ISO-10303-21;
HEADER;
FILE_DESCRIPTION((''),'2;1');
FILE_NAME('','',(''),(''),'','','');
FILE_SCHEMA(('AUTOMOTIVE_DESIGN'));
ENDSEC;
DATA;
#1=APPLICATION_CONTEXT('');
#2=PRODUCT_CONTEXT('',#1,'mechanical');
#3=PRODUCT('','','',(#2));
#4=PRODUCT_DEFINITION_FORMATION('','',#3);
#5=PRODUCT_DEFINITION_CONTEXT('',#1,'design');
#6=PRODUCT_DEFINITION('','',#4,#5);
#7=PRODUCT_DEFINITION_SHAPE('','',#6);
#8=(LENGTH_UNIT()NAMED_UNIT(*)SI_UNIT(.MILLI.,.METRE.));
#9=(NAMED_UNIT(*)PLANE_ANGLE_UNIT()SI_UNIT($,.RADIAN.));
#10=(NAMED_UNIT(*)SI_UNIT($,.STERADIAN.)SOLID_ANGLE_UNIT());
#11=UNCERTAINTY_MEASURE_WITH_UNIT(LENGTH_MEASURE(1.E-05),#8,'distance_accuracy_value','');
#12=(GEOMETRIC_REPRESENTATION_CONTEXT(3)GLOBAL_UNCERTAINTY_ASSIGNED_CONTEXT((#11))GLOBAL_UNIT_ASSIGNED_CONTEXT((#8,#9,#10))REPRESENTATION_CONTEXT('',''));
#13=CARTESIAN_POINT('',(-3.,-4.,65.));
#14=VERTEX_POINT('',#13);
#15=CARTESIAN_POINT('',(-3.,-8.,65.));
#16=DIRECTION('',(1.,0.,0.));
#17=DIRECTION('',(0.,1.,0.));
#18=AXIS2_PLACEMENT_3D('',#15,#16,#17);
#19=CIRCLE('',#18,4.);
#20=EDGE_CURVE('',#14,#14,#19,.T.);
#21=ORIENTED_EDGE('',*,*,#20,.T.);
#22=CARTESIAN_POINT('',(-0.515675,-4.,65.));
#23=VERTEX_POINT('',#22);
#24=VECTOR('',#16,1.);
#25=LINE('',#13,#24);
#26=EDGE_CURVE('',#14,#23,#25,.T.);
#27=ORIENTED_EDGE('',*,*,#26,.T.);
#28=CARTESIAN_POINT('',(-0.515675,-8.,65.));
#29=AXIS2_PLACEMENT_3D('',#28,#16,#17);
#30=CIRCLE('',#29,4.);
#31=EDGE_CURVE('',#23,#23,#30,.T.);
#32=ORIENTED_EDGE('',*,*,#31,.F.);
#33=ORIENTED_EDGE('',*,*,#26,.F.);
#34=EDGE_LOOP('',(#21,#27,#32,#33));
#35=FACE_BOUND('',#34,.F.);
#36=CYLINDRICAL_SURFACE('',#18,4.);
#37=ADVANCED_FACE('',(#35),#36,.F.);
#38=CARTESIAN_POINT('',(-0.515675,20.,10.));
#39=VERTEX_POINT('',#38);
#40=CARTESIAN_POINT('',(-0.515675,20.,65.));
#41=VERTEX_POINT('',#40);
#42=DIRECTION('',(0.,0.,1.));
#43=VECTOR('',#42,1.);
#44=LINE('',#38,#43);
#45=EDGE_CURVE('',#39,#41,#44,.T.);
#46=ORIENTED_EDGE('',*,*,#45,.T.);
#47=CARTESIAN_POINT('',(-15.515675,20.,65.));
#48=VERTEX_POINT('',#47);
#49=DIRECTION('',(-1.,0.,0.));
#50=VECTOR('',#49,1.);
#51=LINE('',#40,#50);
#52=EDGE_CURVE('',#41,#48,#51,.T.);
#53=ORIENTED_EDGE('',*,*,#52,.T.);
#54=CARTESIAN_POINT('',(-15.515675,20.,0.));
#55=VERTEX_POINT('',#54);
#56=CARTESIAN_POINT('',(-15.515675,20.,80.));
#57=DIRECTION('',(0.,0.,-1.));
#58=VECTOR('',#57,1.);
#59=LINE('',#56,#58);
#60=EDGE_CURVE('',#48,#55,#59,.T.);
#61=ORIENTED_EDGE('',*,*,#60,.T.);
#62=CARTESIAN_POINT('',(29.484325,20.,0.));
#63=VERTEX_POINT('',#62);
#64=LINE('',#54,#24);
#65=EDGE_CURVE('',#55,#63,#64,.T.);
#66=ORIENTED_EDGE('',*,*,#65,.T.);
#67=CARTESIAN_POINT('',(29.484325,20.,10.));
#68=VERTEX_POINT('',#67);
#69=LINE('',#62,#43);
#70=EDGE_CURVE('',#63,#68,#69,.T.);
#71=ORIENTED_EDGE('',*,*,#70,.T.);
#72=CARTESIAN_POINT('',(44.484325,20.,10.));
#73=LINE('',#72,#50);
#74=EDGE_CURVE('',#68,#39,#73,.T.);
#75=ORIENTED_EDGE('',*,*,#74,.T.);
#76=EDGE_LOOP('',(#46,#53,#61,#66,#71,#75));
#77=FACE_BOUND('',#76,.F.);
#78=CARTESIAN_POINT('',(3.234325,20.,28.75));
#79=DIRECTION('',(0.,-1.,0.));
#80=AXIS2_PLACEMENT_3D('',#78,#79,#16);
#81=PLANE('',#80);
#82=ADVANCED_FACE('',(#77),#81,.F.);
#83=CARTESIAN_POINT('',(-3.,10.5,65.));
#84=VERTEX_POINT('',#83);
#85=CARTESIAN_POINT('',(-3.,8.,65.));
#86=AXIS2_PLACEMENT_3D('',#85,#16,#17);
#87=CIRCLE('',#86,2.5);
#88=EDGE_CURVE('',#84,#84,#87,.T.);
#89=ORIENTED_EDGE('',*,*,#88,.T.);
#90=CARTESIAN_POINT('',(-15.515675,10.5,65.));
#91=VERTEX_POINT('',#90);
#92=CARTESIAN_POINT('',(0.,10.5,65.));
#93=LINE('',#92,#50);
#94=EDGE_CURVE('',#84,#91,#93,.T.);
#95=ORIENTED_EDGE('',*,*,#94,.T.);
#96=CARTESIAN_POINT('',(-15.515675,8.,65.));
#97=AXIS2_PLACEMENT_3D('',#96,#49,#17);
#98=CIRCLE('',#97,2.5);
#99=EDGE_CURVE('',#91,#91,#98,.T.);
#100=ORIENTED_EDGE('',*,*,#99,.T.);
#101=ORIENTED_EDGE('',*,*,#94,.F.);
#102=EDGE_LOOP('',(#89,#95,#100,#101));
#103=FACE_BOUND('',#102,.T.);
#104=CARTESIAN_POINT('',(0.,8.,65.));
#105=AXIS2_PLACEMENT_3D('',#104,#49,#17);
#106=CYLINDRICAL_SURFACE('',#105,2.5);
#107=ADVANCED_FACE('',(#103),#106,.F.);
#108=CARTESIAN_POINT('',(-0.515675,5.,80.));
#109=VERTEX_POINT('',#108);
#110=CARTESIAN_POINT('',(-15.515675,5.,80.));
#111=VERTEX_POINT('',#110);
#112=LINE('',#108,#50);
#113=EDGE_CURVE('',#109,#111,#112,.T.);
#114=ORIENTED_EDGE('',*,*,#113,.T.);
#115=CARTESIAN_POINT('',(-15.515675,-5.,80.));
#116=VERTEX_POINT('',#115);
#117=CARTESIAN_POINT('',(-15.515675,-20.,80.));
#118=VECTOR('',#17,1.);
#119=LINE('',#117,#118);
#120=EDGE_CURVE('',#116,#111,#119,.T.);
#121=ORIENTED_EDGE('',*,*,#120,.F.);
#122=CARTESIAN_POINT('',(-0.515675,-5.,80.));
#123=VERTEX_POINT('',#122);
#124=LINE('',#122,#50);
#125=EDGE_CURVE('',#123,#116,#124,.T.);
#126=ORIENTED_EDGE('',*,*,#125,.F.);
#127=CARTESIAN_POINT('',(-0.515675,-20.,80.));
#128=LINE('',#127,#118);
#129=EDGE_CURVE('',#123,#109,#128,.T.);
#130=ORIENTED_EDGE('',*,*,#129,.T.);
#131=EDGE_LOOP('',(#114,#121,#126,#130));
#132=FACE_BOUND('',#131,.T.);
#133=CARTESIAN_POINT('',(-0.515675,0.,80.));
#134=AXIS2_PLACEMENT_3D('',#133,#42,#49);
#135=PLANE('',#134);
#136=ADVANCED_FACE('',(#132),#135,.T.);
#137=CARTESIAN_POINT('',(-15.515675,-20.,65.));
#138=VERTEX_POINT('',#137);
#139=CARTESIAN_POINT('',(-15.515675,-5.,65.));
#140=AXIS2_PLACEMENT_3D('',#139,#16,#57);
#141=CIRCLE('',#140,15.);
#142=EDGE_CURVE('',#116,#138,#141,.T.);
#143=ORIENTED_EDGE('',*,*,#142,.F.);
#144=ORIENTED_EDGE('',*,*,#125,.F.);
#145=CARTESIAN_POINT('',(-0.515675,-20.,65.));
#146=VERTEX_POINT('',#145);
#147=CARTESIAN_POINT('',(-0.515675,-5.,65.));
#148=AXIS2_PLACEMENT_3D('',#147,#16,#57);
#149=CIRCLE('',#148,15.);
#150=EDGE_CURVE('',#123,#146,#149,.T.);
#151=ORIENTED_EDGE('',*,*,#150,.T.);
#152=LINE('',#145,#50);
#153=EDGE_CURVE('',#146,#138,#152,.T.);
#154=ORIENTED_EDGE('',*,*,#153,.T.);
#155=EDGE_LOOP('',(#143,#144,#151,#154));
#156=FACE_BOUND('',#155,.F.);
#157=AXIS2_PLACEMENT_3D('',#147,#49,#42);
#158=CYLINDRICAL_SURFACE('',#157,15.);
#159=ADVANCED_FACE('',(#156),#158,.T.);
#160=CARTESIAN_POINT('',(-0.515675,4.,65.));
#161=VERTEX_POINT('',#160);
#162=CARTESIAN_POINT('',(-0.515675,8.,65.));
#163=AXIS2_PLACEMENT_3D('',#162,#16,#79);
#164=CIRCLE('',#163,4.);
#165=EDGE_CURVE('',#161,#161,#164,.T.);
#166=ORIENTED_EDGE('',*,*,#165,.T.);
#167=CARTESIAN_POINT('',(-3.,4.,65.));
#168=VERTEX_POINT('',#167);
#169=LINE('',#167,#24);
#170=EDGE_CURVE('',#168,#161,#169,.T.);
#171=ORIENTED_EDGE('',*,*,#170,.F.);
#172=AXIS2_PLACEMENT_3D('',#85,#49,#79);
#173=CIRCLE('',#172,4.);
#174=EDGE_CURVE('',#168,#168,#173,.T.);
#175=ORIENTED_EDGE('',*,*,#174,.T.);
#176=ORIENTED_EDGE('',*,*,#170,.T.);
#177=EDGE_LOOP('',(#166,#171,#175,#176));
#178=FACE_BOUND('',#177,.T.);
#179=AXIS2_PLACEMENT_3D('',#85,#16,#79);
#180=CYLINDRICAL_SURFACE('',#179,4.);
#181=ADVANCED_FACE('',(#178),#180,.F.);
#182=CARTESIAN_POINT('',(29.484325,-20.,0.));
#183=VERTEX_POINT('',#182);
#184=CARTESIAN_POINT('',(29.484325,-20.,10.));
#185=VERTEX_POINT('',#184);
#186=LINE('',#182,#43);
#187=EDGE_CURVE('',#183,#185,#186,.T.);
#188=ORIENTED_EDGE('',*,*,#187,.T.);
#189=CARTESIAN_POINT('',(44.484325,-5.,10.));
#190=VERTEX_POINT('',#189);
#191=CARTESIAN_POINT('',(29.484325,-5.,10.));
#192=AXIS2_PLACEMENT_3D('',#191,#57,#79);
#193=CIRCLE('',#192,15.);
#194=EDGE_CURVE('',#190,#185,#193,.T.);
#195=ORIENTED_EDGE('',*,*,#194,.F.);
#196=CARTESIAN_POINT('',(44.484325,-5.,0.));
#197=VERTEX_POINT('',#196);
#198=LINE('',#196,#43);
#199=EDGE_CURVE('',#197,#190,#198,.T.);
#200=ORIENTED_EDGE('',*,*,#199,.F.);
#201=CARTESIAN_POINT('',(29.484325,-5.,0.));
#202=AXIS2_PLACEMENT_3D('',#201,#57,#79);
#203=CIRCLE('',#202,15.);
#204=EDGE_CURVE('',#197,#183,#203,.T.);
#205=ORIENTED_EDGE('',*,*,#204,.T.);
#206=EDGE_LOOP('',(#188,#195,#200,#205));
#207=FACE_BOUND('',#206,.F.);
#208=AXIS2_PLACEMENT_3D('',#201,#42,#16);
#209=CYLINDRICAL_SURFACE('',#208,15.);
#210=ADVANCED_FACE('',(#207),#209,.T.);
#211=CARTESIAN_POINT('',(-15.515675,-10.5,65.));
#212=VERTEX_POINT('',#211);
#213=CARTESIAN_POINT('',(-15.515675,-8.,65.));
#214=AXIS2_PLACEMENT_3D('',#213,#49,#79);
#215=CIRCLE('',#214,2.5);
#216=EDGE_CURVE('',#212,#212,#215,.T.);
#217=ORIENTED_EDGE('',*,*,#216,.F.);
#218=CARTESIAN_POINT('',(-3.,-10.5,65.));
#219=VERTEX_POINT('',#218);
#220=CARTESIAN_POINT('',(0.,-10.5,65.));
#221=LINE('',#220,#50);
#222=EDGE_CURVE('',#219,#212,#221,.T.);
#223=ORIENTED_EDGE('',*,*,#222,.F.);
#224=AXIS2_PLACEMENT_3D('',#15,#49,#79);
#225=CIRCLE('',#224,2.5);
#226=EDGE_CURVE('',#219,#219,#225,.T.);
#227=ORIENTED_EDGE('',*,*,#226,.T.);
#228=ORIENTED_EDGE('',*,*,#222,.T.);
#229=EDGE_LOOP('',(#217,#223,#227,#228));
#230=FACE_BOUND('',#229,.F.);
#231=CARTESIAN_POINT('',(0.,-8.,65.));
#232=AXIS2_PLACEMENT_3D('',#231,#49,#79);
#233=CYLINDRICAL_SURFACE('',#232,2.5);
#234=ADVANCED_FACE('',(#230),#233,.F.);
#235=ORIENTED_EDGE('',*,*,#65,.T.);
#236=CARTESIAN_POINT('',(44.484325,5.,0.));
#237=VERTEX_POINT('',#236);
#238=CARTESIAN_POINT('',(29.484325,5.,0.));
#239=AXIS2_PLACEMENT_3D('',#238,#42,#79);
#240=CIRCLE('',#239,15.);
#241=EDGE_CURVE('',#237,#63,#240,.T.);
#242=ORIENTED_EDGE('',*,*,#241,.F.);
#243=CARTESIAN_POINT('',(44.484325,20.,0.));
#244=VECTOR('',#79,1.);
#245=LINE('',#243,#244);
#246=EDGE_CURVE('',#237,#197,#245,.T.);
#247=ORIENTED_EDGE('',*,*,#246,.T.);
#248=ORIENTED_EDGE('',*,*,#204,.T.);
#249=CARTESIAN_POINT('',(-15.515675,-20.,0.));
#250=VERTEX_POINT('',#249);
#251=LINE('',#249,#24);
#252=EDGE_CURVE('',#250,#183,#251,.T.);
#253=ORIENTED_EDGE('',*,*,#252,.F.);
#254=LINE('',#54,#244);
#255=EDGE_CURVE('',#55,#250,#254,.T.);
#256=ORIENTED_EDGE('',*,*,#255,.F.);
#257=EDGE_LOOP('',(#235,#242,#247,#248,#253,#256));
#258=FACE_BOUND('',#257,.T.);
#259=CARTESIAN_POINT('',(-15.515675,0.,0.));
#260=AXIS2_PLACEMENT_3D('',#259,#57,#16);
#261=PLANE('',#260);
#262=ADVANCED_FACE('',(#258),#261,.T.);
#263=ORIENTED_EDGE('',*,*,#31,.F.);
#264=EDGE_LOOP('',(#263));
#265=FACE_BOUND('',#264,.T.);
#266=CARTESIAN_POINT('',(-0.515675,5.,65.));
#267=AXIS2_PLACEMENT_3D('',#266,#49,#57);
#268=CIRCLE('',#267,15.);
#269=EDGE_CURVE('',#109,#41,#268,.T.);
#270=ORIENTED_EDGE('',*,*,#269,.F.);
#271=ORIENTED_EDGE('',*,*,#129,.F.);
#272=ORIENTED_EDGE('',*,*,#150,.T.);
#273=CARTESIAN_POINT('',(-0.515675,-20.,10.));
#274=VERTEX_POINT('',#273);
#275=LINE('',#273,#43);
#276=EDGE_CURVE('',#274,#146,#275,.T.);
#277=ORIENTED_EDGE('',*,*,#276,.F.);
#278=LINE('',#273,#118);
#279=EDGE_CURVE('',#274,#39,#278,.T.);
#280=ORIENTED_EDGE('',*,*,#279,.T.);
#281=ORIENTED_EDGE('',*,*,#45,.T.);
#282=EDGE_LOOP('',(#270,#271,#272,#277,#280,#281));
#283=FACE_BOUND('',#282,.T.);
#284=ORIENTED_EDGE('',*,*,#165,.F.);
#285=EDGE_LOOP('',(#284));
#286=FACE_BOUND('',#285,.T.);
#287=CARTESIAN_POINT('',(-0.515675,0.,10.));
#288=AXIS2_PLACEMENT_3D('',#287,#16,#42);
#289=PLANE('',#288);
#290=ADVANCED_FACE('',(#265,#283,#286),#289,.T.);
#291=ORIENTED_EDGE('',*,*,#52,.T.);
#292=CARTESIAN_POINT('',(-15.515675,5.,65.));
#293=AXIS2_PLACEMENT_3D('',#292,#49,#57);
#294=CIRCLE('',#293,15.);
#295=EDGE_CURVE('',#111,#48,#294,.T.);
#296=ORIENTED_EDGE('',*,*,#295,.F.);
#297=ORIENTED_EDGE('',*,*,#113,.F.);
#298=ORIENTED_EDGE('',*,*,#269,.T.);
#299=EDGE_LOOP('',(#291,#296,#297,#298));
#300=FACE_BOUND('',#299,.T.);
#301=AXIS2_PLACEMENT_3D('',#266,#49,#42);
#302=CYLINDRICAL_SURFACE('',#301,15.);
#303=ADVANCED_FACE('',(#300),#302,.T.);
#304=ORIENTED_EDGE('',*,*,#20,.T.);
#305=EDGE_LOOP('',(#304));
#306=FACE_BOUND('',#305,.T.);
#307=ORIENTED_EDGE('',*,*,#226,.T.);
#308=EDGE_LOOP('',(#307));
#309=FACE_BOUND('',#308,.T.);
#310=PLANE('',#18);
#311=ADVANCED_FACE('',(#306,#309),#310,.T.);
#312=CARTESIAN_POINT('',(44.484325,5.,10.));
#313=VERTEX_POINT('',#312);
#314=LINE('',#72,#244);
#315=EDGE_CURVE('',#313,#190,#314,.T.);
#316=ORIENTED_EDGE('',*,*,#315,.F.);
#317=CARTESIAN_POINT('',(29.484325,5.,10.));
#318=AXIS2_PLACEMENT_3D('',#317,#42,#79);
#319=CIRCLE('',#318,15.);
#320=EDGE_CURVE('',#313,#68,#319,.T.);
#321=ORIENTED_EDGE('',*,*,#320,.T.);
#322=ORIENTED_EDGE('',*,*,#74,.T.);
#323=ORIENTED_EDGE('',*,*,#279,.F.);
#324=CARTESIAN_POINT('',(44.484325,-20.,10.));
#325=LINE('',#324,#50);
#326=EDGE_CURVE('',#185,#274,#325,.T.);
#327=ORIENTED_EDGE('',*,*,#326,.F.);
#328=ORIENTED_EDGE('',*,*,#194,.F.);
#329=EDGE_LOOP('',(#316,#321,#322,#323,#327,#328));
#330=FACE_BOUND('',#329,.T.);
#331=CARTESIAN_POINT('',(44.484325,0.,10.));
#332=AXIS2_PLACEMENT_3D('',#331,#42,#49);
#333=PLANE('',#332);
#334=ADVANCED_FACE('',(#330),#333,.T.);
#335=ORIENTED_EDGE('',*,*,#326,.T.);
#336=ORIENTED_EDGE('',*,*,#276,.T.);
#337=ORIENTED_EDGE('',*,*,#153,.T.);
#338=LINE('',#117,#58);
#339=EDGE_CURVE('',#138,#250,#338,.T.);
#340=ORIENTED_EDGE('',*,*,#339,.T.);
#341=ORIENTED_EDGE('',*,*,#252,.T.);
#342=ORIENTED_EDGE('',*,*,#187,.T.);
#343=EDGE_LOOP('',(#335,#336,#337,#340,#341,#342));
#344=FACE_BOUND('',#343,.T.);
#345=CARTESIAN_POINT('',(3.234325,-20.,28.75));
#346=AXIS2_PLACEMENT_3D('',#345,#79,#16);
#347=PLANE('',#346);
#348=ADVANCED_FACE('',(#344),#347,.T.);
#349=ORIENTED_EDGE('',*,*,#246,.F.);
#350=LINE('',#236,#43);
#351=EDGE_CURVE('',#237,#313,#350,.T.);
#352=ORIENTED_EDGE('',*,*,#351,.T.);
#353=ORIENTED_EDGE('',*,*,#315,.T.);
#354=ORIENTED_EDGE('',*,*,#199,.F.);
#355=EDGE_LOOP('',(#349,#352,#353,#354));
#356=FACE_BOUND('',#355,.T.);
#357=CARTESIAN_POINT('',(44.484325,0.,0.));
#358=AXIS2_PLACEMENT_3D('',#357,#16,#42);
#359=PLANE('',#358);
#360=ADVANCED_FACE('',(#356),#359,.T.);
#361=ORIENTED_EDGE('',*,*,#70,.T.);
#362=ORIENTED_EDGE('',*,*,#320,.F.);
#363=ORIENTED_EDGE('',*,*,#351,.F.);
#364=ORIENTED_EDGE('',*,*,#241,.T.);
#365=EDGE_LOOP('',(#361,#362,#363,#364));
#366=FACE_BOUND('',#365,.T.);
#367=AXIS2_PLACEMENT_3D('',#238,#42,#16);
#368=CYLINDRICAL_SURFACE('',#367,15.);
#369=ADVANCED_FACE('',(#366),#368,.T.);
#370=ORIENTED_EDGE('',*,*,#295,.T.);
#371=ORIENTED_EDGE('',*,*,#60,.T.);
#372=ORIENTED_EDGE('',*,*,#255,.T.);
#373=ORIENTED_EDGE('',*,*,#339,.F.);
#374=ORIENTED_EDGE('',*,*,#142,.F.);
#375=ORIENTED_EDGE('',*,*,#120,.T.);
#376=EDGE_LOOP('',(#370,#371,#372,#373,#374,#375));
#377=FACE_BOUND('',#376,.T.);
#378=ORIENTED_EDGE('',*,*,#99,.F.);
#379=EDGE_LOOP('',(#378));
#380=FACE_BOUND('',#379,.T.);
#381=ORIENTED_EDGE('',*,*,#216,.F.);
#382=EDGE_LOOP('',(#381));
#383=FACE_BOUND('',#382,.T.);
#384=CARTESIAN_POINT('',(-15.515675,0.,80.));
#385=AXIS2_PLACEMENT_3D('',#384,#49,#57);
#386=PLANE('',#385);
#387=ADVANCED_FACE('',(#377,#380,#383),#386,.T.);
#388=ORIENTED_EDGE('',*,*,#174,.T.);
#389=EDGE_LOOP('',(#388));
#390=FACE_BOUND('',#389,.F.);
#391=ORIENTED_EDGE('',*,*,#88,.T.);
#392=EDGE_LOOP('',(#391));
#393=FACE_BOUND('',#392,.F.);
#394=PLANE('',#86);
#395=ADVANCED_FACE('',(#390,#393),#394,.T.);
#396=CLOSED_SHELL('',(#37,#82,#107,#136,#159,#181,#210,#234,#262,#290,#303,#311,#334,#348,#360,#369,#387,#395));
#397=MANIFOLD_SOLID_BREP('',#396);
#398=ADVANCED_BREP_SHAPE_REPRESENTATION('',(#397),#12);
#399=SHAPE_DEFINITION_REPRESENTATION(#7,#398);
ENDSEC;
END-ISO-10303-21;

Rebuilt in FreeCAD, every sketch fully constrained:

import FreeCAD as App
import Part
import Sketcher
from FreeCAD import Vector


def edges_at(feature, points):
    """Names of the edges that pass closest to the given points."""
    edges = feature.Shape.Edges
    near = lambda p: min(range(len(edges)), key=lambda i: edges[i].distToShape(Part.Vertex(*p))[0])
    return sorted({f"Edge{near(p) + 1}" for p in points})


def add_polygon(sketch, points):
    """Adds a closed chain of lines whose ends are joined by coincident constraints."""
    first, n = sketch.GeometryCount, len(points)
    for a, b in zip(points, points[1:] + points[:1]):
        sketch.addGeometry(Part.LineSegment(App.Vector(*a, 0), App.Vector(*b, 0)), False)
    for i in range(n):
        sketch.addConstraint(Sketcher.Constraint("Coincident", first + i, 2, first + (i + 1) % n, 1))

doc = App.newDocument("Part")
params = doc.addObject("Spreadsheet::Sheet", "Params")
for row, (alias, value) in enumerate([
    ("sketch1_width", "60 mm"),
    ("sketch1_width2", "45 mm"),
    ("sketch1_height", "80 mm"),
    ("sketch1_height2", "10 mm"),
    ("pad1_length", "40 mm"),
    ("fillet_radius", "15 mm"),
    ("sketch2_diameter", "5 mm"),
    ("hole_diameter", "5 mm"),
    ("hole_cbore_diameter", "8 mm"),
    ("hole_cbore_depth", "3 mm"),
], start=1):
    params.set(f"A{row}", alias)
    params.set(f"B{row}", "=" + value)
    params.setAlias(f"B{row}", alias)

body = doc.addObject("PartDesign::Body", "Body")

# Sketch on XZ plane
sketch1 = body.newObject("Sketcher::SketchObject", "Sketch")
sketch1.AttachmentSupport = (doc.getObject("XZ_Plane"), [""])
sketch1.MapMode = "FlatFace"
add_polygon(sketch1, [(-15.515675, 80), (-15.515675, 0), (44.484325, 0), (44.484325, 10), (-0.515675, 10), (-0.515675, 80)])  # lines 0-5
sketch1.addConstraint([
    Sketcher.Constraint("Vertical", 0),
    Sketcher.Constraint("Horizontal", 1),
    Sketcher.Constraint("Vertical", 2),
    Sketcher.Constraint("Horizontal", 3),
    Sketcher.Constraint("Vertical", 4),
    Sketcher.Constraint("Horizontal", 5),
    Sketcher.Constraint("PointOnObject", 0, 2, -1),
    Sketcher.Constraint("DistanceX", 1, 1, 1, 2, 60.0),
    Sketcher.Constraint("DistanceX", 3, 2, 3, 1, 45.0),
    Sketcher.Constraint("DistanceY", 0, 2, 0, 1, 80.0),
    Sketcher.Constraint("DistanceY", 2, 1, 2, 2, 10.0),
    Sketcher.Constraint("DistanceX", 0, 2, -1, 1, 15.515675),
])
sketch1.setExpression("Constraints[13]", "Params.sketch1_width")
sketch1.setExpression("Constraints[14]", "Params.sketch1_width2")
sketch1.setExpression("Constraints[15]", "Params.sketch1_height")
sketch1.setExpression("Constraints[16]", "Params.sketch1_height2")
pad1 = body.newObject("PartDesign::Pad", "Pad")
pad1.Profile = sketch1
pad1.setExpression("Length", "Params.pad1_length")
pad1.Midplane = True
doc.recompute()

fillet = body.newObject("PartDesign::Fillet", "Fillet")
fillet.Base = (pad1, edges_at(pad1, [
    (-8.016, 20, 80),
    (-8.016, -20, 80),
    (44.484, 20, 5),
    (44.484, -20, 5),
]))
fillet.setExpression("Radius", "Params.fillet_radius")

# Sketch on YZ plane
sketch2 = body.newObject("Sketcher::SketchObject", "Sketch001")
sketch2.AttachmentSupport = (doc.getObject("YZ_Plane"), [""])
sketch2.MapMode = "FlatFace"
sketch2.addGeometry(Part.Circle(Vector(-8, 65, 0), Vector(0, 0, 1), 2.5), False)
sketch2.addConstraint([
    Sketcher.Constraint("Diameter", 0, 5.0),
    Sketcher.Constraint("DistanceX", 0, 3, -1, 1, 8.0),
    Sketcher.Constraint("DistanceY", -1, 1, 0, 3, 65.0),
])
sketch2.setExpression("Constraints[0]", "Params.sketch2_diameter")
doc.recompute()
hole = body.newObject("PartDesign::Hole", "Hole")
hole.Profile = sketch2
hole.ThreadType = "None"
hole.setExpression("Diameter", "Params.hole_diameter")
hole.DepthType = "ThroughAll"
hole.HoleCutType = "Counterbore"
hole.setExpression("HoleCutDiameter", "Params.hole_cbore_diameter")
hole.setExpression("HoleCutDepth", "Params.hole_cbore_depth")
doc.recompute()

mirrored = body.newObject("PartDesign::Mirrored", "Mirrored")
mirrored.Originals = [hole]
mirrored.MirrorPlane = (doc.getObject("XZ_Plane"), [""])
body.Tip = mirrored

doc.recompute()
